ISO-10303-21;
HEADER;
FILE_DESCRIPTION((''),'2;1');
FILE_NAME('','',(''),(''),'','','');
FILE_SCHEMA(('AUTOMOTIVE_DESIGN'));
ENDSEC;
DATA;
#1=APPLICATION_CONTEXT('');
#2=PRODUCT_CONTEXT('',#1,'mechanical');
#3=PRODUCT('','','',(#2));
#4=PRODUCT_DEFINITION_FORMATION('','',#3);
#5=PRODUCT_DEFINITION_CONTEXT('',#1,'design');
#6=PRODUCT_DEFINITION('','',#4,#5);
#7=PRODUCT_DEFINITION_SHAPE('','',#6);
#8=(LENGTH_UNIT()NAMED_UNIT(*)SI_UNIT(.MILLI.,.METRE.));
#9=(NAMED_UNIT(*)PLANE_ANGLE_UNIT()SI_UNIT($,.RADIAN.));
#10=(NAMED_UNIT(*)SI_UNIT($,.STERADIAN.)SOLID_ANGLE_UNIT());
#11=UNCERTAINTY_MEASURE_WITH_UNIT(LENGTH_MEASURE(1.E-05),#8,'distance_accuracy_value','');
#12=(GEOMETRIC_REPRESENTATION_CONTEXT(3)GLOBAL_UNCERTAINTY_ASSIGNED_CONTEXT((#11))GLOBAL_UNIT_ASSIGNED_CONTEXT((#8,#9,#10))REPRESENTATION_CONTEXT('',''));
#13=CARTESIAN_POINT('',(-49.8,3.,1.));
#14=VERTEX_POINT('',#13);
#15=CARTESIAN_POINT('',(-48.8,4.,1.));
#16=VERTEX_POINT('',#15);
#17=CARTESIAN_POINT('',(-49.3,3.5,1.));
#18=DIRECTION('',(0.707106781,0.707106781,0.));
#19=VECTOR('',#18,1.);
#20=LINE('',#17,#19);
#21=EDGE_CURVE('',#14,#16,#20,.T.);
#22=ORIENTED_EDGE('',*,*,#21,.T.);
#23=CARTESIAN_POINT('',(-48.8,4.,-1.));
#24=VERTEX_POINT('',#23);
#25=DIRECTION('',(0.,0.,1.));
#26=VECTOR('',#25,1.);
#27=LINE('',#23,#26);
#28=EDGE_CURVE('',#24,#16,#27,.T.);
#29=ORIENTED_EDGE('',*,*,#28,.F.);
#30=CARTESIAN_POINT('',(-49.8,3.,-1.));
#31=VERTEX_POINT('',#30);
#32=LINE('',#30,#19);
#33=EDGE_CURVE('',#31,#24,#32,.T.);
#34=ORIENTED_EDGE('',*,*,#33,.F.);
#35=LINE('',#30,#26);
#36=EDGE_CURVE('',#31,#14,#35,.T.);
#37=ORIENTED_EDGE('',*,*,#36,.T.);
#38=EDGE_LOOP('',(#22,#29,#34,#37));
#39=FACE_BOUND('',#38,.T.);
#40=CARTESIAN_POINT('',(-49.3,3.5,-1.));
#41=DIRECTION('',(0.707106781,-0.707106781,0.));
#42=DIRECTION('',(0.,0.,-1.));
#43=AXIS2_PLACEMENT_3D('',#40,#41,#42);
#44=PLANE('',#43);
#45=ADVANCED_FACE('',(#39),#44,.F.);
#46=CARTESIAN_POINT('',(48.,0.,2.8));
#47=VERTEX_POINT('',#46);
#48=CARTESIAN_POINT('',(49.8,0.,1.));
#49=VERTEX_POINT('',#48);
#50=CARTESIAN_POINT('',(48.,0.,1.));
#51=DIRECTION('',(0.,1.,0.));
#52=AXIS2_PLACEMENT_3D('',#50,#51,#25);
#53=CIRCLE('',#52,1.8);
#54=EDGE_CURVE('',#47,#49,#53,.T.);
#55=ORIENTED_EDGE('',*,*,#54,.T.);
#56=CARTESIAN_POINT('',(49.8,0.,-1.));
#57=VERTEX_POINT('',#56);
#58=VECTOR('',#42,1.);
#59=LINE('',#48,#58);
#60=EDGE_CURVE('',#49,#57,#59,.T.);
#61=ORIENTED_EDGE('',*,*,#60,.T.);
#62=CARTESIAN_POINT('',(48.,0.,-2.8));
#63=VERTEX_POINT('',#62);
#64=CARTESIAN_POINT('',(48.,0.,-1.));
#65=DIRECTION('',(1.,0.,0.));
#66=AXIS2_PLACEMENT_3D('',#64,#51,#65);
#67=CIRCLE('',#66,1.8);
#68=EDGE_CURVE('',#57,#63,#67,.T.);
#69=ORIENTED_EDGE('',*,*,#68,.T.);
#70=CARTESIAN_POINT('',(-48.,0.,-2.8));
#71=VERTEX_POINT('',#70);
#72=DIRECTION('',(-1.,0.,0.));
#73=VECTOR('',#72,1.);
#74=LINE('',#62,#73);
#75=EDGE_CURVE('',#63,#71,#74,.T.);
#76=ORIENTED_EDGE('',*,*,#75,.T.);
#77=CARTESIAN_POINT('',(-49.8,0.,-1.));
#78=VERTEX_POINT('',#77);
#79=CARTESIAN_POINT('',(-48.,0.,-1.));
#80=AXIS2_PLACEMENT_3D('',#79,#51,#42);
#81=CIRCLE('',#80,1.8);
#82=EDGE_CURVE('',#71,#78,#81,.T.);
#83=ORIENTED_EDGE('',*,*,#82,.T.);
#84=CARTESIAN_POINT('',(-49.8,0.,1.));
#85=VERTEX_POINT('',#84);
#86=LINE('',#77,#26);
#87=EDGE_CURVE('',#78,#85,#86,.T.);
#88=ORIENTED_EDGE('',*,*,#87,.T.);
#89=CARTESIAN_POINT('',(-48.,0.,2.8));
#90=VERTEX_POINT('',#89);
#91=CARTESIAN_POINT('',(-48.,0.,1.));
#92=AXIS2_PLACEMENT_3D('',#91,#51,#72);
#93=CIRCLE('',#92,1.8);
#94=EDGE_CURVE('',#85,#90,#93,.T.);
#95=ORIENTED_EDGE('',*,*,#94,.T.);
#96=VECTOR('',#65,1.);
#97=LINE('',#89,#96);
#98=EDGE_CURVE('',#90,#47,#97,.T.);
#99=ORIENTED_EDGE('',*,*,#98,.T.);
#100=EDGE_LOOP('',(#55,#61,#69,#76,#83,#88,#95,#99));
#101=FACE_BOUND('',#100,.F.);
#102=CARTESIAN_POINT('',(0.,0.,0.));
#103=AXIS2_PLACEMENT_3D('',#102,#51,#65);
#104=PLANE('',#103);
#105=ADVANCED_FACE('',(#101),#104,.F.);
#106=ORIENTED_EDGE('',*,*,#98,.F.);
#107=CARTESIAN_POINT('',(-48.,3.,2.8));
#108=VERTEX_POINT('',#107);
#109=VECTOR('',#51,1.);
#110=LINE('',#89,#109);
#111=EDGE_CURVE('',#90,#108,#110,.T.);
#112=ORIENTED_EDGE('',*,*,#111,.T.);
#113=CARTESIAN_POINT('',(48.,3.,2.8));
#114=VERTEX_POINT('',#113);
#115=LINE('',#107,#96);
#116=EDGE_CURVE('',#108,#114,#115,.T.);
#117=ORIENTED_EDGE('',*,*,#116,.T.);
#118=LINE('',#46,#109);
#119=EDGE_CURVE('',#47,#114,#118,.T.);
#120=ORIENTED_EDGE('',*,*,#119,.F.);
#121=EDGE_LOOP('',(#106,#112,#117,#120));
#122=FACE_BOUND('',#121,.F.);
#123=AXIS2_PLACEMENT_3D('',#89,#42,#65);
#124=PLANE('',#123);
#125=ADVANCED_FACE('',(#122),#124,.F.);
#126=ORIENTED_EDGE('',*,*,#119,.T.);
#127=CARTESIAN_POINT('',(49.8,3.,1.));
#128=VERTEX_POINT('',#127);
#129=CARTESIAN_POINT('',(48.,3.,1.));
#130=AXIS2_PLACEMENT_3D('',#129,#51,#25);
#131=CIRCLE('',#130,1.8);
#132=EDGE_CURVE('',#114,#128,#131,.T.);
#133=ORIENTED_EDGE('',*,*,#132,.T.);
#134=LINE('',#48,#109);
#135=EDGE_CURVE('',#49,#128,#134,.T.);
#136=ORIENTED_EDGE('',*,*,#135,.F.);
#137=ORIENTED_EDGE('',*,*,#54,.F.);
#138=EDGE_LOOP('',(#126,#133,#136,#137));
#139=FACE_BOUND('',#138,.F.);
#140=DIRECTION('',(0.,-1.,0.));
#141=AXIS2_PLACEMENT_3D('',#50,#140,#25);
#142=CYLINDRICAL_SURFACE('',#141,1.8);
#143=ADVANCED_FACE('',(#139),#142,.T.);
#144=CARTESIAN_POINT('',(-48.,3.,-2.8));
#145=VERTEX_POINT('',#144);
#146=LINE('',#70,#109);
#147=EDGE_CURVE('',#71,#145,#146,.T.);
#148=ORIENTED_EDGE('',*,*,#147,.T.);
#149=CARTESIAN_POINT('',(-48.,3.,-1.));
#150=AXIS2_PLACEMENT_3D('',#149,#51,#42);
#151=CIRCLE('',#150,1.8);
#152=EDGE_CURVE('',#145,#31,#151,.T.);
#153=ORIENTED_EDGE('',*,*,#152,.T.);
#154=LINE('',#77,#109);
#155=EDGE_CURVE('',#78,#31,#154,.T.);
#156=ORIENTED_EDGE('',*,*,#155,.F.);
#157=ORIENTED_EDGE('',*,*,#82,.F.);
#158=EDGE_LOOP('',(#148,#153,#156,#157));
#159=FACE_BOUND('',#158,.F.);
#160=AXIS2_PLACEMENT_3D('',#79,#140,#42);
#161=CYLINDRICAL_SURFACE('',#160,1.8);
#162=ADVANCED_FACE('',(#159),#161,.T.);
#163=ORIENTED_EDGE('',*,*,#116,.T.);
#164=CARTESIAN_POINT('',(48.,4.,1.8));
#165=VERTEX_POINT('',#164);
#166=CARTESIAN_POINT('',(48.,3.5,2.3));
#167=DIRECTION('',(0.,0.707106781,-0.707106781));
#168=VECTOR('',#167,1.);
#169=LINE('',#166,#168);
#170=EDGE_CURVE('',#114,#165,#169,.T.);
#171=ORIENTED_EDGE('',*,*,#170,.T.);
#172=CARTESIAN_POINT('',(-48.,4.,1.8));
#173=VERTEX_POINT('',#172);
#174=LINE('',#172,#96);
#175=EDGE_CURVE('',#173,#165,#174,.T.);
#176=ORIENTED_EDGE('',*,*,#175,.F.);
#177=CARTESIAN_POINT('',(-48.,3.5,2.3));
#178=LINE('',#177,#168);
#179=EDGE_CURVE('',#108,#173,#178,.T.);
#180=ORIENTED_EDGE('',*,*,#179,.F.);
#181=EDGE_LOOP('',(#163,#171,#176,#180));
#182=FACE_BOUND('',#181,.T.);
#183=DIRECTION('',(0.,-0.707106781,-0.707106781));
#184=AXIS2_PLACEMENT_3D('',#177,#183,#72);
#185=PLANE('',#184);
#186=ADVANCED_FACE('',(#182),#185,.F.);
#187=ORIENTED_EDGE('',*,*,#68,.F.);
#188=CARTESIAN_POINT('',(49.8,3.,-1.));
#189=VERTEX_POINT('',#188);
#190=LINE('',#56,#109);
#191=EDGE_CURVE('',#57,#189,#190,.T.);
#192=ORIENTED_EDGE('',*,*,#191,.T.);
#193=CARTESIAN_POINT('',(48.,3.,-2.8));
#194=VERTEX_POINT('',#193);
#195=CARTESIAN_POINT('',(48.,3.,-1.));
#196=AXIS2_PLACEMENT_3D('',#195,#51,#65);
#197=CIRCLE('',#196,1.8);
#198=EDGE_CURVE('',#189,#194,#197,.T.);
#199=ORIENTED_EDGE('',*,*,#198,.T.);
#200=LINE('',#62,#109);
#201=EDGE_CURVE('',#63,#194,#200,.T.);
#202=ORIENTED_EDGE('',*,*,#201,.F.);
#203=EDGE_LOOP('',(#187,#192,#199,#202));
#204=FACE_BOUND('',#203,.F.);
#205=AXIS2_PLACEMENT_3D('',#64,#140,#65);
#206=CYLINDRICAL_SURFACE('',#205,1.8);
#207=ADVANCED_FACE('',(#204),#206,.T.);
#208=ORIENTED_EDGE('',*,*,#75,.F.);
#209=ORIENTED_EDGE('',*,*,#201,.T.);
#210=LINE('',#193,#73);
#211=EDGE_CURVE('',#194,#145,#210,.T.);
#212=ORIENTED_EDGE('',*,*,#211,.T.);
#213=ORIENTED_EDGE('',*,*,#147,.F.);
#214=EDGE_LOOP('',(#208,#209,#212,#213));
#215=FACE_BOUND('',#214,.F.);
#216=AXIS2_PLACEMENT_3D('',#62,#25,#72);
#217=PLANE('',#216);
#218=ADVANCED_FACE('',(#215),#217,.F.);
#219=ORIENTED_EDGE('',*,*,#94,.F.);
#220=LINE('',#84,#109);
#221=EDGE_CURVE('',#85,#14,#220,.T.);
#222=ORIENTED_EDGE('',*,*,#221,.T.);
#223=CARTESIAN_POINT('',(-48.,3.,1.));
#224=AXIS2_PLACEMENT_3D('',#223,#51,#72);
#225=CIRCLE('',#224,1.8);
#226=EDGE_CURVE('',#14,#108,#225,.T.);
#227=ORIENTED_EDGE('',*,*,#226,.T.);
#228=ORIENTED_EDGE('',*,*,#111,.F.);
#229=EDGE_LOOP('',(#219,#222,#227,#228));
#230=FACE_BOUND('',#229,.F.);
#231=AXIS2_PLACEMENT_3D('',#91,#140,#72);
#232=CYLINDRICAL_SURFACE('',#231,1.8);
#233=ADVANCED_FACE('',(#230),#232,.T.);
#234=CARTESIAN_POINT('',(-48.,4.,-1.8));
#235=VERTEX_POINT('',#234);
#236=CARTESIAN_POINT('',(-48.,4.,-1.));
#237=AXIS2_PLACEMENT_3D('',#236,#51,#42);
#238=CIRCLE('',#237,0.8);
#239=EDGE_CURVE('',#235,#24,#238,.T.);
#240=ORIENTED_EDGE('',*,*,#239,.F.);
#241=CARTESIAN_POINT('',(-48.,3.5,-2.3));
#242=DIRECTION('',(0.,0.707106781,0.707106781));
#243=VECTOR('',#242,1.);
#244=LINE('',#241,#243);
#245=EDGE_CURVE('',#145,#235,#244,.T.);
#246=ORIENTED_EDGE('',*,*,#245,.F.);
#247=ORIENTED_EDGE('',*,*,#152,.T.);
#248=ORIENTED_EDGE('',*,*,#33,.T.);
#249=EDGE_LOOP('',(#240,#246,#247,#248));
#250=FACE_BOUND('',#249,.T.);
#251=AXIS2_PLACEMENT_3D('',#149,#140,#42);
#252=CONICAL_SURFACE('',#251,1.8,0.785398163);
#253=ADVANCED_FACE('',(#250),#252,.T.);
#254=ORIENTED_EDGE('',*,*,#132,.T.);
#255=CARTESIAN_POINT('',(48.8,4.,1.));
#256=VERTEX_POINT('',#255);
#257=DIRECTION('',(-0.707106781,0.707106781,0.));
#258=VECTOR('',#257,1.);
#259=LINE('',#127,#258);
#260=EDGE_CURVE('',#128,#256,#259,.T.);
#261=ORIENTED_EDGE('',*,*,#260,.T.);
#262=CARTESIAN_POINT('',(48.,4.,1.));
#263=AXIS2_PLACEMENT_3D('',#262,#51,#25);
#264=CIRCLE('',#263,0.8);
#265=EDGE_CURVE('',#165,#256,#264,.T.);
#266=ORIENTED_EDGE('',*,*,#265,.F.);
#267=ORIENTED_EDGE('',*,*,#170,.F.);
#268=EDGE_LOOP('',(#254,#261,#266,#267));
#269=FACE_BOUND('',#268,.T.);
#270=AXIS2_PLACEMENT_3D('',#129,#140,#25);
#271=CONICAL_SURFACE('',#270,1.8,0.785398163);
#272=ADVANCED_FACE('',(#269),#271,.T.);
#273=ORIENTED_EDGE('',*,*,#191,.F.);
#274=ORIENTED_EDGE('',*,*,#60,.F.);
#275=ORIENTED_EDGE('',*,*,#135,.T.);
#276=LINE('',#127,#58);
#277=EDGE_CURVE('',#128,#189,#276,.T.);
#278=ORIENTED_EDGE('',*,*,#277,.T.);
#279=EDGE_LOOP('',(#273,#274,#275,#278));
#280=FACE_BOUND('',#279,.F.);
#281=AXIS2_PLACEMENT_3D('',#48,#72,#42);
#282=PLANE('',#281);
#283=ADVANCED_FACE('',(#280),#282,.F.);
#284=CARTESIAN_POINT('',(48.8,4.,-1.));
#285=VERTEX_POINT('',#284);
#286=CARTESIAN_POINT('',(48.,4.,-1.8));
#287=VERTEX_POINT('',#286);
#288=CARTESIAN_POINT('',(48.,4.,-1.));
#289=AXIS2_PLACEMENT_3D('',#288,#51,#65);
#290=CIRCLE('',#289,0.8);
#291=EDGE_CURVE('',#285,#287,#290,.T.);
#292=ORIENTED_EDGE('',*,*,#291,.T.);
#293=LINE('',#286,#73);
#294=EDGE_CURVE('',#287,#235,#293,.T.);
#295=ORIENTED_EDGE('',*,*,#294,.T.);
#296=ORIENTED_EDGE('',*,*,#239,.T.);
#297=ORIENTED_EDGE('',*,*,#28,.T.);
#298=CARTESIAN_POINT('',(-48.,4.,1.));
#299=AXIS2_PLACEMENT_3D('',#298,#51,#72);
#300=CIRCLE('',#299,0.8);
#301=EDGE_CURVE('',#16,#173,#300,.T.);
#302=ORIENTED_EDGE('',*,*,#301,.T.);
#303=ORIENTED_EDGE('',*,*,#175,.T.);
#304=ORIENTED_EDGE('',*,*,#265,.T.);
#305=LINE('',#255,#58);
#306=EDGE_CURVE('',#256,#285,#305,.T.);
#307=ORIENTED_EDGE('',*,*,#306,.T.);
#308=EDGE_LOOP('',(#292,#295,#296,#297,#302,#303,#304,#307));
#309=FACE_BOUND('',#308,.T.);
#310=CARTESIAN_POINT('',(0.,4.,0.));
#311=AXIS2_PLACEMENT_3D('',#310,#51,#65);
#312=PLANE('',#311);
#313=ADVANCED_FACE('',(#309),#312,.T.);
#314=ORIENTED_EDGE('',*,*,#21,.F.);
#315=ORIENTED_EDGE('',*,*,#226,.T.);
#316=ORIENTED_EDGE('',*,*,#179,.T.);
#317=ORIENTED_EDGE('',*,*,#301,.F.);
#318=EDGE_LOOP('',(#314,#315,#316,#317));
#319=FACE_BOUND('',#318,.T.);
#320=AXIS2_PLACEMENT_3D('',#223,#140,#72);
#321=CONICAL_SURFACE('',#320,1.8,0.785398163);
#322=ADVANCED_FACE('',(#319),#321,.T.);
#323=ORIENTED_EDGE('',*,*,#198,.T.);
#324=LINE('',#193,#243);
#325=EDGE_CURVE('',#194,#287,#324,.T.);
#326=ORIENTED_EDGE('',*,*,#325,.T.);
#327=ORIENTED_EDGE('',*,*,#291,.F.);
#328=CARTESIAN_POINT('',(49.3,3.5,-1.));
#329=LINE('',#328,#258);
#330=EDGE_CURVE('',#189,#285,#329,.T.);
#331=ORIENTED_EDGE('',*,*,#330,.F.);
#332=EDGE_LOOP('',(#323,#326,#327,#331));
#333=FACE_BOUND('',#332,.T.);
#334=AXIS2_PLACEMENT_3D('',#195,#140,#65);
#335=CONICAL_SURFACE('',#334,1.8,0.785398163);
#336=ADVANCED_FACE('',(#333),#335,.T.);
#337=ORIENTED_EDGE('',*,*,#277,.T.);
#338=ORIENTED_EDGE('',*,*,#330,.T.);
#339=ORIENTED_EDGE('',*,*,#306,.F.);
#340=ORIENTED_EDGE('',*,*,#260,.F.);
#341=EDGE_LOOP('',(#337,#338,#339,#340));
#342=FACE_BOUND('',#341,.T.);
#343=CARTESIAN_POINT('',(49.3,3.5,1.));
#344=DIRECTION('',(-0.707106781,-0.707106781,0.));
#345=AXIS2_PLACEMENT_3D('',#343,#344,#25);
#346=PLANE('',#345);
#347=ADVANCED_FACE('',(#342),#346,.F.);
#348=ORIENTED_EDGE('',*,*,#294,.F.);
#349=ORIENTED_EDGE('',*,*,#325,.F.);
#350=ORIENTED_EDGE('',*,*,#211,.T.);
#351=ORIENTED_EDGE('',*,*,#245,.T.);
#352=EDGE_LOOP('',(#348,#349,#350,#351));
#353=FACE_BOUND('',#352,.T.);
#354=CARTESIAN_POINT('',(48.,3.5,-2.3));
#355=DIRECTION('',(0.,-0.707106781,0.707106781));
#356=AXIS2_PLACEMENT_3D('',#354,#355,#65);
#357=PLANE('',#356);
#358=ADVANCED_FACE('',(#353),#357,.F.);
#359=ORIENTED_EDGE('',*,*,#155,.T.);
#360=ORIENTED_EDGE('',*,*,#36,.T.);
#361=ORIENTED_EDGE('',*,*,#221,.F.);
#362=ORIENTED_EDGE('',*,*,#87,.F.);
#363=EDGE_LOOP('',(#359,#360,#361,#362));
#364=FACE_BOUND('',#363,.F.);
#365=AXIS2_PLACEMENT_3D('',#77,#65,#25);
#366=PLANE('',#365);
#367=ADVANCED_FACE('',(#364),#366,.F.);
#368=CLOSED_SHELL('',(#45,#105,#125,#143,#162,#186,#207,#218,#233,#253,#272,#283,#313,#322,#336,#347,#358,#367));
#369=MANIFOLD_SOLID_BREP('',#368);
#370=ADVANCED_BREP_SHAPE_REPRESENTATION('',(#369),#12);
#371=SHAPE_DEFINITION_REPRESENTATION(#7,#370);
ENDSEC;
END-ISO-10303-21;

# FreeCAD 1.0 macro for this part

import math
import FreeCAD as App
import Part
import Sketcher
Q = App.Units.Quantity


def edges_at(feature, points):
    """Names of the edges that pass closest to the given points."""
    edges = feature.Shape.Edges
    near = lambda p: min(range(len(edges)), key=lambda i: edges[i].distToShape(Part.Vertex(*p))[0])
    return sorted({f"Edge{near(p) + 1}" for p in points})

doc = App.newDocument("Part")
params = doc.addObject("Spreadsheet::Sheet", "Params")
for row, (alias, value) in enumerate([
    ("sketch1_height", "2 mm"),
    ("sketch1_radius", "1.8 mm"),
    ("sketch1_width", "96 mm"),
    ("pad1_length", "4 mm"),
    ("chamfer_size", "1 mm"),
], start=1):
    params.set(f"A{row}", alias)
    params.set(f"B{row}", "=" + value)
    params.setAlias(f"B{row}", alias)

body = doc.addObject("PartDesign::Body", "Body")

# Sketch on XZ plane
sketch1 = doc.addObject("Sketcher::SketchObject", "Sketch")
body.addObject(sketch1)
sketch1.AttachmentSupport = (doc.XZ_Plane, [""])
sketch1.MapMode = "FlatFace"
sketch1.addGeometry([
    Part.LineSegment(App.Vector(-49.8, -1, 0), App.Vector(-49.8, 1, 0)),  # 0
    Part.ArcOfCircle(Part.Circle(App.Vector(-48, 1, 0), App.Vector(0, 0, 1), 1.8), math.radians(90), math.radians(180)),  # 1
    Part.LineSegment(App.Vector(-48, 2.8, 0), App.Vector(48, 2.8, 0)),  # 2
    Part.ArcOfCircle(Part.Circle(App.Vector(48, 1, 0), App.Vector(0, 0, 1), 1.8), math.radians(0), math.radians(90)),  # 3
    Part.LineSegment(App.Vector(49.8, 1, 0), App.Vector(49.8, -1, 0)),  # 4
    Part.ArcOfCircle(Part.Circle(App.Vector(48, -1, 0), App.Vector(0, 0, 1), 1.8), math.radians(-90), math.radians(0)),  # 5
    Part.LineSegment(App.Vector(48, -2.8, 0), App.Vector(-48, -2.8, 0)),  # 6
    Part.ArcOfCircle(Part.Circle(App.Vector(-48, -1, 0), App.Vector(0, 0, 1), 1.8), math.radians(180), math.radians(270)),  # 7
], False)
sketch1.addConstraint([
    Sketcher.Constraint("Tangent", 0, 2, 1, 2),
    Sketcher.Constraint("Tangent", 1, 1, 2, 1),
    Sketcher.Constraint("Tangent", 2, 2, 3, 2),
    Sketcher.Constraint("Tangent", 3, 1, 4, 1),
    Sketcher.Constraint("Tangent", 4, 2, 5, 2),
    Sketcher.Constraint("Tangent", 5, 1, 6, 1),
    Sketcher.Constraint("Tangent", 6, 2, 7, 2),
    Sketcher.Constraint("Tangent", 7, 1, 0, 1),
    Sketcher.Constraint("Vertical", 0),
    Sketcher.Constraint("Horizontal", 2),
    Sketcher.Constraint("Vertical", 4),
    Sketcher.Constraint("Horizontal", 6),
    Sketcher.Constraint("Equal", 1, 3),
    Sketcher.Constraint("Equal", 3, 5),
    Sketcher.Constraint("Equal", 5, 7),
    Sketcher.Constraint("Symmetric", 1, 3, 5, 3, -1, 1),
    Sketcher.Constraint("DistanceY", 0, 1, 0, 2, Q("2 mm")),
    Sketcher.Constraint("Radius", 1, Q("1.8 mm")),
    Sketcher.Constraint("DistanceX", 2, 1, 2, 2, Q("96 mm")),
])
sketch1.setExpression("Constraints[16]", "Params.sketch1_height")
sketch1.setExpression("Constraints[17]", "Params.sketch1_radius")
sketch1.setExpression("Constraints[18]", "Params.sketch1_width")
pad1 = doc.addObject("PartDesign::Pad", "Pad")
body.addObject(pad1)
pad1.Profile = sketch1
pad1.setExpression("Length", "Params.pad1_length")
pad1.Reversed = True
doc.recompute()

chamfer = doc.addObject("PartDesign::Chamfer", "Chamfer")
body.addObject(chamfer)
chamfer.Base = (pad1, edges_at(pad1, [
    (0, 4, 2.8),
    (49.273, 4, 2.273),
    (49.8, 4, 0),
    (49.273, 4, -2.273),
    (0, 4, -2.8),
    (-49.273, 4, -2.273),
    (-49.8, 4, 0),
    (-49.273, 4, 2.273),
]))
chamfer.setExpression("Size", "Params.chamfer_size")

doc.recompute()
